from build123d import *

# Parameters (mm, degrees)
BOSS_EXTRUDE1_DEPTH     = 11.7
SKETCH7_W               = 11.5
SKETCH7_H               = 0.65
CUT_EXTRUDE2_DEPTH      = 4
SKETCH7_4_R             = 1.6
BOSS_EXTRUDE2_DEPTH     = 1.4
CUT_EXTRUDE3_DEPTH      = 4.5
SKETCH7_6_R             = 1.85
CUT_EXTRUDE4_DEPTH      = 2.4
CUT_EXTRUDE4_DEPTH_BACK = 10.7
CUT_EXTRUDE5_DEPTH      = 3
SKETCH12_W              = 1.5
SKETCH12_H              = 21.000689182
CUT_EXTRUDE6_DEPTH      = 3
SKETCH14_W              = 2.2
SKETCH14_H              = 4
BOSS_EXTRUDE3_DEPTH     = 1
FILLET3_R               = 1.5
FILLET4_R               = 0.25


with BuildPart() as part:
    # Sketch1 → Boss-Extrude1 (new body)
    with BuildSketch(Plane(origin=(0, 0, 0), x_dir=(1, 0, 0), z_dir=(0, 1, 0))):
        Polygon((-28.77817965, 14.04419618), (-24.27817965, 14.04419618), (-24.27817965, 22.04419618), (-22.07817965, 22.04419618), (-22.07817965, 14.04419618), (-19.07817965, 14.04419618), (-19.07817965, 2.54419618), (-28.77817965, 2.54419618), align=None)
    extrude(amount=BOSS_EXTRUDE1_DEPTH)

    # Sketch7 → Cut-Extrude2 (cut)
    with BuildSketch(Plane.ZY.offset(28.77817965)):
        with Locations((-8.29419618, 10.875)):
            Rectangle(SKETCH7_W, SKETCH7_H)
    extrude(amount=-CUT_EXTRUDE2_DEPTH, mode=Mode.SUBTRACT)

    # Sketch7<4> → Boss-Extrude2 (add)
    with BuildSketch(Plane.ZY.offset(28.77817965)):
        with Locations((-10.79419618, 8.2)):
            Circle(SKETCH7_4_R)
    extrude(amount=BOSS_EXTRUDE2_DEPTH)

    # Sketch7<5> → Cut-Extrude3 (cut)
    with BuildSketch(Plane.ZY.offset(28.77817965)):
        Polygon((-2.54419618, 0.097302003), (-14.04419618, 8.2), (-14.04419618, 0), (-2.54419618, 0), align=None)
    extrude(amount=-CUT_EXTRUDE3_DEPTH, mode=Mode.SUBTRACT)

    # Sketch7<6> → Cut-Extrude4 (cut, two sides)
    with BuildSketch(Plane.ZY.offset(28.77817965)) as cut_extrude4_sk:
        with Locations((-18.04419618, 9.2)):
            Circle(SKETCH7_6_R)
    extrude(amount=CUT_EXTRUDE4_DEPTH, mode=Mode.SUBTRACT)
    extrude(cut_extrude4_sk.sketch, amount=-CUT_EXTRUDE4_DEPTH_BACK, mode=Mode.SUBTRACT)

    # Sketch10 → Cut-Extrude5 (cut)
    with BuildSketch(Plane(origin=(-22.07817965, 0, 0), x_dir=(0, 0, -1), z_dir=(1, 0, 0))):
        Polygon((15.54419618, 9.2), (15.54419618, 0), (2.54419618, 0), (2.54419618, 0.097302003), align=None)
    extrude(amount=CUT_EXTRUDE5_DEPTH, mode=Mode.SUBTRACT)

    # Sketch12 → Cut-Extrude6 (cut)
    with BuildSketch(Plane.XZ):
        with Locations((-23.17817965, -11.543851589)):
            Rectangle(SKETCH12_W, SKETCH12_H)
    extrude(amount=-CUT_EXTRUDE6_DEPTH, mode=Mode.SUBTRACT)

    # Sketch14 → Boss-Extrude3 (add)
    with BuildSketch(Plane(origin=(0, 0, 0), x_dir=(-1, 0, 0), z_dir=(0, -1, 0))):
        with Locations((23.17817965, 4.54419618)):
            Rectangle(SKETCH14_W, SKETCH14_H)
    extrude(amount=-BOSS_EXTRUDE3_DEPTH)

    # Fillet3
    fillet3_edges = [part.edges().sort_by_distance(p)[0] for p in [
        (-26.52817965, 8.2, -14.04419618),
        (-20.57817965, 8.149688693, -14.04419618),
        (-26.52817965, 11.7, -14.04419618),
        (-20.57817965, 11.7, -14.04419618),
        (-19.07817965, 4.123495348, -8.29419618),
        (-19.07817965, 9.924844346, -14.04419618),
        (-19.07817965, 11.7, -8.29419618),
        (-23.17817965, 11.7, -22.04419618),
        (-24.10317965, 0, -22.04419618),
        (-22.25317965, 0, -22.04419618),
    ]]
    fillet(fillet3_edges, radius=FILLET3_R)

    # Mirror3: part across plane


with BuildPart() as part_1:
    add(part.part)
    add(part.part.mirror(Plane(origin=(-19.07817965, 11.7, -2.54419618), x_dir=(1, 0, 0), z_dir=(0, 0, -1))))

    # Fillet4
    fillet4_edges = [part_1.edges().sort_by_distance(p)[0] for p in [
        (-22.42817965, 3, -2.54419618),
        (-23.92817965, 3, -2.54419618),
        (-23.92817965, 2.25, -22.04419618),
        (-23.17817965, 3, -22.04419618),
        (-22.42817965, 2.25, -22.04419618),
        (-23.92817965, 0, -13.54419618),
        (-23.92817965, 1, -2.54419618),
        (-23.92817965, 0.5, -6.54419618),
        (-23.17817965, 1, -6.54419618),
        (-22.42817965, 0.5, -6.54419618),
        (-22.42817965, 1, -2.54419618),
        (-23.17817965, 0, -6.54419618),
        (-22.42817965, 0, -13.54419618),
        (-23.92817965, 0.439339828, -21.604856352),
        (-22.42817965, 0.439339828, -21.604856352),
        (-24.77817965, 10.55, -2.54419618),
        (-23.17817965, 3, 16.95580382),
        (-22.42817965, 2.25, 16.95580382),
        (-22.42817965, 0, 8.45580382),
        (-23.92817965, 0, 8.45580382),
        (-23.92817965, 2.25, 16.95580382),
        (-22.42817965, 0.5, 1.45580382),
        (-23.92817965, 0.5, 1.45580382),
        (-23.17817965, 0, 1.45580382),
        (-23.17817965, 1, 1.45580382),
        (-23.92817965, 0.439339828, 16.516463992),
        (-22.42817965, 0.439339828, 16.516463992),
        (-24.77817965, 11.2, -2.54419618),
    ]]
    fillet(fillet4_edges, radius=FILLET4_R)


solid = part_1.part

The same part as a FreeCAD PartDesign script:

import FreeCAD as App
import Part
import Sketcher
from FreeCAD import Vector
Q = App.Units.Quantity


def edges_at(feature, points):
    """Names of the edges that pass closest to the given points."""
    edges = feature.Shape.Edges
    near = lambda p: min(range(len(edges)), key=lambda i: edges[i].distToShape(Part.Vertex(*p))[0])
    return sorted({f"Edge{near(p) + 1}" for p in points})

doc = App.newDocument("Part")
body = doc.addObject("PartDesign::Body", "Body")

# Sketch on XZ plane
sketch1 = body.newObject("Sketcher::SketchObject", "Sketch")
sketch1.AttachmentSupport = (doc.getObject("XZ_Plane"), [""])
sketch1.MapMode = "FlatFace"
sketch1.addGeometry(Part.LineSegment(Vector(-24.3, -14, 0), Vector(-28.8, -14, 0)), False)
sketch1.addGeometry(Part.LineSegment(Vector(-28.8, -14, 0), Vector(-28.8, -2.5, 0)), False)
sketch1.addGeometry(Part.LineSegment(Vector(-28.8, -2.5, 0), Vector(-19.1, -2.5, 0)), False)
sketch1.addGeometry(Part.LineSegment(Vector(-19.1, -2.5, 0), Vector(-19.1, -14, 0)), False)
sketch1.addGeometry(Part.LineSegment(Vector(-19.1, -14, 0), Vector(-22.1, -14, 0)), False)
sketch1.addGeometry(Part.LineSegment(Vector(-22.1, -14, 0), Vector(-22.1, -22, 0)), False)
sketch1.addGeometry(Part.LineSegment(Vector(-22.1, -22, 0), Vector(-24.3, -22, 0)), False)
sketch1.addGeometry(Part.LineSegment(Vector(-24.3, -22, 0), Vector(-24.3, -14, 0)), False)
sketch1.addConstraint(Sketcher.Constraint("Coincident", 0, 2, 1, 1))
sketch1.addConstraint(Sketcher.Constraint("Coincident", 1, 2, 2, 1))
sketch1.addConstraint(Sketcher.Constraint("Coincident", 2, 2, 3, 1))
sketch1.addConstraint(Sketcher.Constraint("Coincident", 3, 2, 4, 1))
sketch1.addConstraint(Sketcher.Constraint("Coincident", 4, 2, 5, 1))
sketch1.addConstraint(Sketcher.Constraint("Coincident", 5, 2, 6, 1))
sketch1.addConstraint(Sketcher.Constraint("Coincident", 6, 2, 7, 1))
sketch1.addConstraint(Sketcher.Constraint("Coincident", 7, 2, 0, 1))
sketch1.addConstraint(Sketcher.Constraint("Horizontal", 0))
sketch1.addConstraint(Sketcher.Constraint("Vertical", 1))
sketch1.addConstraint(Sketcher.Constraint("Horizontal", 2))
sketch1.addConstraint(Sketcher.Constraint("Vertical", 3))
sketch1.addConstraint(Sketcher.Constraint("Horizontal", 4))
sketch1.addConstraint(Sketcher.Constraint("Vertical", 5))
sketch1.addConstraint(Sketcher.Constraint("Horizontal", 6))
sketch1.addConstraint(Sketcher.Constraint("Vertical", 7))
sketch1.addConstraint(Sketcher.Constraint("Horizontal", 0, 2, 3, 2))
sketch1.addConstraint(Sketcher.Constraint("DistanceX", 4, 2, 4, 1, 3.0))
sketch1.addConstraint(Sketcher.Constraint("DistanceY", 5, 2, 5, 1, 8.0))
sketch1.addConstraint(Sketcher.Constraint("DistanceX", 0, 2, 0, 1, 4.5))
sketch1.addConstraint(Sketcher.Constraint("DistanceX", 2, 1, 2, 2, 9.7))
sketch1.addConstraint(Sketcher.Constraint("DistanceY", 1, 1, 1, 2, 11.5))
sketch1.addConstraint(Sketcher.Constraint("DistanceX", 0, 2, -1, 1, 28.77818))
sketch1.addConstraint(Sketcher.Constraint("DistanceY", 0, 2, -1, 1, 14.044196))
pad1 = body.newObject("PartDesign::Pad", "Pad")
pad1.Profile = sketch1
pad1.Length = 11.7
pad1.Reversed = True

# Sketch on YZ plane
sketch2 = body.newObject("Sketcher::SketchObject", "Sketch001")
sketch2.AttachmentSupport = (doc.getObject("YZ_Plane"), [""])
sketch2.MapMode = "FlatFace"
sketch2.AttachmentOffset = App.Placement(Vector(0, 0, -28.77818), App.Rotation())
sketch2.addGeometry(Part.LineSegment(Vector(11.2, -14, 0), Vector(10.6, -14, 0)), False)
sketch2.addGeometry(Part.LineSegment(Vector(10.6, -14, 0), Vector(10.6, -2.5, 0)), False)
sketch2.addGeometry(Part.LineSegment(Vector(10.6, -2.5, 0), Vector(11.2, -2.5, 0)), False)
sketch2.addGeometry(Part.LineSegment(Vector(11.2, -2.5, 0), Vector(11.2, -14, 0)), False)
sketch2.addConstraint(Sketcher.Constraint("Coincident", 0, 2, 1, 1))
sketch2.addConstraint(Sketcher.Constraint("Coincident", 1, 2, 2, 1))
sketch2.addConstraint(Sketcher.Constraint("Coincident", 2, 2, 3, 1))
sketch2.addConstraint(Sketcher.Constraint("Coincident", 3, 2, 0, 1))
sketch2.addConstraint(Sketcher.Constraint("Horizontal", 0))
sketch2.addConstraint(Sketcher.Constraint("Vertical", 1))
sketch2.addConstraint(Sketcher.Constraint("Horizontal", 2))
sketch2.addConstraint(Sketcher.Constraint("Vertical", 3))
sketch2.addConstraint(Sketcher.Constraint("DistanceY", 1, 1, 1, 2, 11.5))
sketch2.addConstraint(Sketcher.Constraint("DistanceX", 0, 2, 0, 1, 0.65))
sketch2.addConstraint(Sketcher.Constraint("DistanceX", -1, 1, 2, 2, 11.2))
sketch2.addConstraint(Sketcher.Constraint("DistanceY", 0, 2, -1, 1, 14.044196))
pocket1 = body.newObject("PartDesign::Pocket", "Pocket")
pocket1.Profile = sketch2
pocket1.Length = 4
pocket1.Reversed = True

# Sketch on YZ plane
sketch3 = body.newObject("Sketcher::SketchObject", "Sketch002")
sketch3.AttachmentSupport = (doc.getObject("YZ_Plane"), [""])
sketch3.MapMode = "FlatFace"
sketch3.AttachmentOffset = App.Placement(Vector(0, 0, -28.77818), App.Rotation())
sketch3.addGeometry(Part.Circle(Vector(8.2, -10.8, 0), Vector(0, 0, 1), 1.6), False)
sketch3.addConstraint(Sketcher.Constraint("Diameter", 0, 3.2))
sketch3.addConstraint(Sketcher.Constraint("DistanceX", -1, 1, 0, 3, 8.2))
sketch3.addConstraint(Sketcher.Constraint("DistanceY", 0, 3, -1, 1, 10.794196))
pad2 = body.newObject("PartDesign::Pad", "Pad001")
pad2.Profile = sketch3
pad2.Length = 1.4
pad2.Reversed = True

# Sketch on YZ plane
sketch4 = body.newObject("Sketcher::SketchObject", "Sketch003")
sketch4.AttachmentSupport = (doc.getObject("YZ_Plane"), [""])
sketch4.MapMode = "FlatFace"
sketch4.AttachmentOffset = App.Placement(Vector(0, 0, -28.77818), App.Rotation())
sketch4.addGeometry(Part.LineSegment(Vector(0.1, -2.54, 0), Vector(8.2, -14.04, 0)), False)
sketch4.addGeometry(Part.LineSegment(Vector(8.2, -14.04, 0), Vector(0, -14.04, 0)), False)
sketch4.addGeometry(Part.LineSegment(Vector(0, -14.04, 0), Vector(0, -2.54, 0)), False)
sketch4.addGeometry(Part.LineSegment(Vector(0, -2.54, 0), Vector(0.1, -2.54, 0)), False)
sketch4.addConstraint(Sketcher.Constraint("Coincident", 0, 2, 1, 1))
sketch4.addConstraint(Sketcher.Constraint("Coincident", 1, 2, 2, 1))
sketch4.addConstraint(Sketcher.Constraint("Coincident", 2, 2, 3, 1))
sketch4.addConstraint(Sketcher.Constraint("Coincident", 3, 2, 0, 1))
sketch4.addConstraint(Sketcher.Constraint("Horizontal", 1))
sketch4.addConstraint(Sketcher.Constraint("Vertical", 2))
sketch4.addConstraint(Sketcher.Constraint("Horizontal", 3))
sketch4.addConstraint(Sketcher.Constraint("PointOnObject", 1, 2, -2))
sketch4.addConstraint(Sketcher.Constraint("DistanceX", 1, 2, 1, 1, 8.2))
sketch4.addConstraint(Sketcher.Constraint("DistanceY", 2, 1, 2, 2, 11.5))
sketch4.addConstraint(Sketcher.Constraint("DistanceX", 3, 1, 3, 2, 0.097302))
sketch4.addConstraint(Sketcher.Constraint("DistanceY", 0, 2, -1, 1, 14.044196))
pocket2 = body.newObject("PartDesign::Pocket", "Pocket001")
pocket2.Profile = sketch4
pocket2.Length = 4.5
pocket2.Reversed = True

# Sketch on YZ plane
sketch5 = body.newObject("Sketcher::SketchObject", "Sketch004")
sketch5.AttachmentSupport = (doc.getObject("YZ_Plane"), [""])
sketch5.MapMode = "FlatFace"
sketch5.AttachmentOffset = App.Placement(Vector(0, 0, -28.77818), App.Rotation())
sketch5.addGeometry(Part.Circle(Vector(9.2, -18, 0), Vector(0, 0, 1), 1.9), False)
sketch5.addConstraint(Sketcher.Constraint("Diameter", 0, 3.7))
sketch5.addConstraint(Sketcher.Constraint("DistanceX", -1, 1, 0, 3, 9.2))
sketch5.addConstraint(Sketcher.Constraint("DistanceY", 0, 3, -1, 1, 18.044196))
pocket3 = body.newObject("PartDesign::Pocket", "Pocket002")
pocket3.Profile = sketch5
pocket3.Type = "ThroughAll"
pocket3.Midplane = True

# Sketch on YZ plane
sketch6 = body.newObject("Sketcher::SketchObject", "Sketch005")
sketch6.AttachmentSupport = (doc.getObject("YZ_Plane"), [""])
sketch6.MapMode = "FlatFace"
sketch6.AttachmentOffset = App.Placement(Vector(0, 0, -22.07818), App.Rotation())
sketch6.addGeometry(Part.LineSegment(Vector(0, -15.54, 0), Vector(9.2, -15.54, 0)), False)
sketch6.addGeometry(Part.LineSegment(Vector(9.2, -15.54, 0), Vector(0.1, -2.54, 0)), False)
sketch6.addGeometry(Part.LineSegment(Vector(0.1, -2.54, 0), Vector(0, -2.54, 0)), False)
sketch6.addGeometry(Part.LineSegment(Vector(0, -2.54, 0), Vector(0, -15.54, 0)), False)
sketch6.addConstraint(Sketcher.Constraint("Coincident", 0, 2, 1, 1))
sketch6.addConstraint(Sketcher.Constraint("Coincident", 1, 2, 2, 1))
sketch6.addConstraint(Sketcher.Constraint("Coincident", 2, 2, 3, 1))
sketch6.addConstraint(Sketcher.Constraint("Coincident", 3, 2, 0, 1))
sketch6.addConstraint(Sketcher.Constraint("Horizontal", 0))
sketch6.addConstraint(Sketcher.Constraint("Horizontal", 2))
sketch6.addConstraint(Sketcher.Constraint("Vertical", 3))
sketch6.addConstraint(Sketcher.Constraint("PointOnObject", 2, 2, -2))
sketch6.addConstraint(Sketcher.Constraint("DistanceY", 3, 2, 3, 1, 13.0))
sketch6.addConstraint(Sketcher.Constraint("Angle", 1, Q("125 deg")))
sketch6.addConstraint(Sketcher.Constraint("DistanceX", 0, 1, 0, 2, 9.2))
sketch6.addConstraint(Sketcher.Constraint("DistanceY", 0, 2, -1, 1, 15.544196))
pocket4 = body.newObject("PartDesign::Pocket", "Pocket003")
pocket4.Profile = sketch6
pocket4.Length = 3
pocket4.Reversed = True

# Sketch on XZ plane
sketch7 = body.newObject("Sketcher::SketchObject", "Sketch006")
sketch7.AttachmentSupport = (doc.getObject("XZ_Plane"), [""])
sketch7.MapMode = "FlatFace"
sketch7.addGeometry(Part.LineSegment(Vector(-23.9, -1, 0), Vector(-23.9, -22, 0)), False)
sketch7.addGeometry(Part.LineSegment(Vector(-23.9, -22, 0), Vector(-22.4, -22, 0)), False)
sketch7.addGeometry(Part.LineSegment(Vector(-22.4, -22, 0), Vector(-22.4, -1, 0)), False)
sketch7.addGeometry(Part.LineSegment(Vector(-22.4, -1, 0), Vector(-23.9, -1, 0)), False)
sketch7.addConstraint(Sketcher.Constraint("Coincident", 0, 2, 1, 1))
sketch7.addConstraint(Sketcher.Constraint("Coincident", 1, 2, 2, 1))
sketch7.addConstraint(Sketcher.Constraint("Coincident", 2, 2, 3, 1))
sketch7.addConstraint(Sketcher.Constraint("Coincident", 3, 2, 0, 1))
sketch7.addConstraint(Sketcher.Constraint("Vertical", 0))
sketch7.addConstraint(Sketcher.Constraint("Horizontal", 1))
sketch7.addConstraint(Sketcher.Constraint("Vertical", 2))
sketch7.addConstraint(Sketcher.Constraint("Horizontal", 3))
sketch7.addConstraint(Sketcher.Constraint("DistanceX", 1, 1, 1, 2, 1.5))
sketch7.addConstraint(Sketcher.Constraint("DistanceY", 0, 2, 0, 1, 21.000689))
sketch7.addConstraint(Sketcher.Constraint("DistanceX", 0, 2, -1, 1, 23.92818))
sketch7.addConstraint(Sketcher.Constraint("DistanceY", 0, 2, -1, 1, 22.044196))
pocket5 = body.newObject("PartDesign::Pocket", "Pocket004")
pocket5.Profile = sketch7
pocket5.Length = 3

# Sketch on XZ plane
sketch8 = body.newObject("Sketcher::SketchObject", "Sketch007")
sketch8.AttachmentSupport = (doc.getObject("XZ_Plane"), [""])
sketch8.MapMode = "FlatFace"
sketch8.addGeometry(Part.LineSegment(Vector(-22.1, -6.5, 0), Vector(-22.1, -2.5, 0)), False)
sketch8.addGeometry(Part.LineSegment(Vector(-22.1, -2.5, 0), Vector(-24.3, -2.5, 0)), False)
sketch8.addGeometry(Part.LineSegment(Vector(-24.3, -2.5, 0), Vector(-24.3, -6.5, 0)), False)
sketch8.addGeometry(Part.LineSegment(Vector(-24.3, -6.5, 0), Vector(-22.1, -6.5, 0)), False)
sketch8.addConstraint(Sketcher.Constraint("Coincident", 0, 2, 1, 1))
sketch8.addConstraint(Sketcher.Constraint("Coincident", 1, 2, 2, 1))
sketch8.addConstraint(Sketcher.Constraint("Coincident", 2, 2, 3, 1))
sketch8.addConstraint(Sketcher.Constraint("Coincident", 3, 2, 0, 1))
sketch8.addConstraint(Sketcher.Constraint("Vertical", 0))
sketch8.addConstraint(Sketcher.Constraint("Horizontal", 1))
sketch8.addConstraint(Sketcher.Constraint("Vertical", 2))
sketch8.addConstraint(Sketcher.Constraint("Horizontal", 3))
sketch8.addConstraint(Sketcher.Constraint("DistanceY", 0, 1, 0, 2, 4.0))
sketch8.addConstraint(Sketcher.Constraint("DistanceX", 1, 2, 1, 1, 2.2))
sketch8.addConstraint(Sketcher.Constraint("DistanceX", 0, 2, -1, 1, 22.07818))
sketch8.addConstraint(Sketcher.Constraint("DistanceY", 0, 2, -1, 1, 2.544196))
pad3 = body.newObject("PartDesign::Pad", "Pad002")
pad3.Profile = sketch8
pad3.Length = 1
pad3.Reversed = True
doc.recompute()

fillet = body.newObject("PartDesign::Fillet", "Fillet")
fillet.Base = (pad3, edges_at(pad3, [
    (-26.528, 8.2, -14.044),
    (-20.578, 8.15, -14.044),
    (-26.528, 11.7, -14.044),
    (-20.578, 11.7, -14.044),
    (-19.078, 4.123, -8.294),
    (-19.078, 9.925, -14.044),
    (-19.078, 11.7, -8.294),
    (-23.178, 11.7, -22.044),
    (-24.103, 0, -22.044),
    (-22.253, 0, -22.044),
]))
fillet.Radius = 1.5
body2 = doc.addObject("PartDesign::Body", "Body001")
doc.recompute()

body2.BaseFeature = body
doc.recompute()

mirroring = doc.addObject("Part::Mirroring", "Mirroring")
mirroring.Source = body
mirroring.Base = Vector(-19.07818, 11.7, -2.544196)
mirroring.Normal = Vector(0, 0, -1)
body3 = doc.addObject("PartDesign::Body", "Body002")
body3.BaseFeature = mirroring
boolean = body2.newObject("PartDesign::Boolean", "Boolean")
boolean.Type = "Fuse"
boolean.addObjects([body3])
doc.recompute()

fillet2 = body2.newObject("PartDesign::Fillet", "Fillet001")
fillet2.Base = (boolean, edges_at(boolean, [
    (-22.428, 3, -2.544),
    (-23.928, 3, -2.544),
    (-23.928, 2.25, -22.044),
    (-23.178, 3, -22.044),
    (-22.428, 2.25, -22.044),
    (-23.928, 0, -13.544),
    (-23.928, 1, -2.544),
    (-23.928, 0.5, -6.544),
    (-23.178, 1, -6.544),
    (-22.428, 0.5, -6.544),
    (-22.428, 1, -2.544),
    (-23.178, 0, -6.544),
    (-22.428, 0, -13.544),
    (-23.928, 0.439, -21.605),
    (-22.428, 0.439, -21.605),
    (-24.778, 10.55, -2.544),
    (-23.178, 3, 16.956),
    (-22.428, 2.25, 16.956),
    (-22.428, 0, 8.456),
    (-23.928, 0, 8.456),
    (-23.928, 2.25, 16.956),
    (-22.428, 0.5, 1.456),
    (-23.928, 0.5, 1.456),
    (-23.178, 0, 1.456),
    (-23.178, 1, 1.456),
    (-23.928, 0.439, 16.516),
    (-22.428, 0.439, 16.516),
    (-24.778, 11.2, -2.544),
]))
fillet2.Radius = 0.25
mirroring.Visibility = False

doc.recompute()
